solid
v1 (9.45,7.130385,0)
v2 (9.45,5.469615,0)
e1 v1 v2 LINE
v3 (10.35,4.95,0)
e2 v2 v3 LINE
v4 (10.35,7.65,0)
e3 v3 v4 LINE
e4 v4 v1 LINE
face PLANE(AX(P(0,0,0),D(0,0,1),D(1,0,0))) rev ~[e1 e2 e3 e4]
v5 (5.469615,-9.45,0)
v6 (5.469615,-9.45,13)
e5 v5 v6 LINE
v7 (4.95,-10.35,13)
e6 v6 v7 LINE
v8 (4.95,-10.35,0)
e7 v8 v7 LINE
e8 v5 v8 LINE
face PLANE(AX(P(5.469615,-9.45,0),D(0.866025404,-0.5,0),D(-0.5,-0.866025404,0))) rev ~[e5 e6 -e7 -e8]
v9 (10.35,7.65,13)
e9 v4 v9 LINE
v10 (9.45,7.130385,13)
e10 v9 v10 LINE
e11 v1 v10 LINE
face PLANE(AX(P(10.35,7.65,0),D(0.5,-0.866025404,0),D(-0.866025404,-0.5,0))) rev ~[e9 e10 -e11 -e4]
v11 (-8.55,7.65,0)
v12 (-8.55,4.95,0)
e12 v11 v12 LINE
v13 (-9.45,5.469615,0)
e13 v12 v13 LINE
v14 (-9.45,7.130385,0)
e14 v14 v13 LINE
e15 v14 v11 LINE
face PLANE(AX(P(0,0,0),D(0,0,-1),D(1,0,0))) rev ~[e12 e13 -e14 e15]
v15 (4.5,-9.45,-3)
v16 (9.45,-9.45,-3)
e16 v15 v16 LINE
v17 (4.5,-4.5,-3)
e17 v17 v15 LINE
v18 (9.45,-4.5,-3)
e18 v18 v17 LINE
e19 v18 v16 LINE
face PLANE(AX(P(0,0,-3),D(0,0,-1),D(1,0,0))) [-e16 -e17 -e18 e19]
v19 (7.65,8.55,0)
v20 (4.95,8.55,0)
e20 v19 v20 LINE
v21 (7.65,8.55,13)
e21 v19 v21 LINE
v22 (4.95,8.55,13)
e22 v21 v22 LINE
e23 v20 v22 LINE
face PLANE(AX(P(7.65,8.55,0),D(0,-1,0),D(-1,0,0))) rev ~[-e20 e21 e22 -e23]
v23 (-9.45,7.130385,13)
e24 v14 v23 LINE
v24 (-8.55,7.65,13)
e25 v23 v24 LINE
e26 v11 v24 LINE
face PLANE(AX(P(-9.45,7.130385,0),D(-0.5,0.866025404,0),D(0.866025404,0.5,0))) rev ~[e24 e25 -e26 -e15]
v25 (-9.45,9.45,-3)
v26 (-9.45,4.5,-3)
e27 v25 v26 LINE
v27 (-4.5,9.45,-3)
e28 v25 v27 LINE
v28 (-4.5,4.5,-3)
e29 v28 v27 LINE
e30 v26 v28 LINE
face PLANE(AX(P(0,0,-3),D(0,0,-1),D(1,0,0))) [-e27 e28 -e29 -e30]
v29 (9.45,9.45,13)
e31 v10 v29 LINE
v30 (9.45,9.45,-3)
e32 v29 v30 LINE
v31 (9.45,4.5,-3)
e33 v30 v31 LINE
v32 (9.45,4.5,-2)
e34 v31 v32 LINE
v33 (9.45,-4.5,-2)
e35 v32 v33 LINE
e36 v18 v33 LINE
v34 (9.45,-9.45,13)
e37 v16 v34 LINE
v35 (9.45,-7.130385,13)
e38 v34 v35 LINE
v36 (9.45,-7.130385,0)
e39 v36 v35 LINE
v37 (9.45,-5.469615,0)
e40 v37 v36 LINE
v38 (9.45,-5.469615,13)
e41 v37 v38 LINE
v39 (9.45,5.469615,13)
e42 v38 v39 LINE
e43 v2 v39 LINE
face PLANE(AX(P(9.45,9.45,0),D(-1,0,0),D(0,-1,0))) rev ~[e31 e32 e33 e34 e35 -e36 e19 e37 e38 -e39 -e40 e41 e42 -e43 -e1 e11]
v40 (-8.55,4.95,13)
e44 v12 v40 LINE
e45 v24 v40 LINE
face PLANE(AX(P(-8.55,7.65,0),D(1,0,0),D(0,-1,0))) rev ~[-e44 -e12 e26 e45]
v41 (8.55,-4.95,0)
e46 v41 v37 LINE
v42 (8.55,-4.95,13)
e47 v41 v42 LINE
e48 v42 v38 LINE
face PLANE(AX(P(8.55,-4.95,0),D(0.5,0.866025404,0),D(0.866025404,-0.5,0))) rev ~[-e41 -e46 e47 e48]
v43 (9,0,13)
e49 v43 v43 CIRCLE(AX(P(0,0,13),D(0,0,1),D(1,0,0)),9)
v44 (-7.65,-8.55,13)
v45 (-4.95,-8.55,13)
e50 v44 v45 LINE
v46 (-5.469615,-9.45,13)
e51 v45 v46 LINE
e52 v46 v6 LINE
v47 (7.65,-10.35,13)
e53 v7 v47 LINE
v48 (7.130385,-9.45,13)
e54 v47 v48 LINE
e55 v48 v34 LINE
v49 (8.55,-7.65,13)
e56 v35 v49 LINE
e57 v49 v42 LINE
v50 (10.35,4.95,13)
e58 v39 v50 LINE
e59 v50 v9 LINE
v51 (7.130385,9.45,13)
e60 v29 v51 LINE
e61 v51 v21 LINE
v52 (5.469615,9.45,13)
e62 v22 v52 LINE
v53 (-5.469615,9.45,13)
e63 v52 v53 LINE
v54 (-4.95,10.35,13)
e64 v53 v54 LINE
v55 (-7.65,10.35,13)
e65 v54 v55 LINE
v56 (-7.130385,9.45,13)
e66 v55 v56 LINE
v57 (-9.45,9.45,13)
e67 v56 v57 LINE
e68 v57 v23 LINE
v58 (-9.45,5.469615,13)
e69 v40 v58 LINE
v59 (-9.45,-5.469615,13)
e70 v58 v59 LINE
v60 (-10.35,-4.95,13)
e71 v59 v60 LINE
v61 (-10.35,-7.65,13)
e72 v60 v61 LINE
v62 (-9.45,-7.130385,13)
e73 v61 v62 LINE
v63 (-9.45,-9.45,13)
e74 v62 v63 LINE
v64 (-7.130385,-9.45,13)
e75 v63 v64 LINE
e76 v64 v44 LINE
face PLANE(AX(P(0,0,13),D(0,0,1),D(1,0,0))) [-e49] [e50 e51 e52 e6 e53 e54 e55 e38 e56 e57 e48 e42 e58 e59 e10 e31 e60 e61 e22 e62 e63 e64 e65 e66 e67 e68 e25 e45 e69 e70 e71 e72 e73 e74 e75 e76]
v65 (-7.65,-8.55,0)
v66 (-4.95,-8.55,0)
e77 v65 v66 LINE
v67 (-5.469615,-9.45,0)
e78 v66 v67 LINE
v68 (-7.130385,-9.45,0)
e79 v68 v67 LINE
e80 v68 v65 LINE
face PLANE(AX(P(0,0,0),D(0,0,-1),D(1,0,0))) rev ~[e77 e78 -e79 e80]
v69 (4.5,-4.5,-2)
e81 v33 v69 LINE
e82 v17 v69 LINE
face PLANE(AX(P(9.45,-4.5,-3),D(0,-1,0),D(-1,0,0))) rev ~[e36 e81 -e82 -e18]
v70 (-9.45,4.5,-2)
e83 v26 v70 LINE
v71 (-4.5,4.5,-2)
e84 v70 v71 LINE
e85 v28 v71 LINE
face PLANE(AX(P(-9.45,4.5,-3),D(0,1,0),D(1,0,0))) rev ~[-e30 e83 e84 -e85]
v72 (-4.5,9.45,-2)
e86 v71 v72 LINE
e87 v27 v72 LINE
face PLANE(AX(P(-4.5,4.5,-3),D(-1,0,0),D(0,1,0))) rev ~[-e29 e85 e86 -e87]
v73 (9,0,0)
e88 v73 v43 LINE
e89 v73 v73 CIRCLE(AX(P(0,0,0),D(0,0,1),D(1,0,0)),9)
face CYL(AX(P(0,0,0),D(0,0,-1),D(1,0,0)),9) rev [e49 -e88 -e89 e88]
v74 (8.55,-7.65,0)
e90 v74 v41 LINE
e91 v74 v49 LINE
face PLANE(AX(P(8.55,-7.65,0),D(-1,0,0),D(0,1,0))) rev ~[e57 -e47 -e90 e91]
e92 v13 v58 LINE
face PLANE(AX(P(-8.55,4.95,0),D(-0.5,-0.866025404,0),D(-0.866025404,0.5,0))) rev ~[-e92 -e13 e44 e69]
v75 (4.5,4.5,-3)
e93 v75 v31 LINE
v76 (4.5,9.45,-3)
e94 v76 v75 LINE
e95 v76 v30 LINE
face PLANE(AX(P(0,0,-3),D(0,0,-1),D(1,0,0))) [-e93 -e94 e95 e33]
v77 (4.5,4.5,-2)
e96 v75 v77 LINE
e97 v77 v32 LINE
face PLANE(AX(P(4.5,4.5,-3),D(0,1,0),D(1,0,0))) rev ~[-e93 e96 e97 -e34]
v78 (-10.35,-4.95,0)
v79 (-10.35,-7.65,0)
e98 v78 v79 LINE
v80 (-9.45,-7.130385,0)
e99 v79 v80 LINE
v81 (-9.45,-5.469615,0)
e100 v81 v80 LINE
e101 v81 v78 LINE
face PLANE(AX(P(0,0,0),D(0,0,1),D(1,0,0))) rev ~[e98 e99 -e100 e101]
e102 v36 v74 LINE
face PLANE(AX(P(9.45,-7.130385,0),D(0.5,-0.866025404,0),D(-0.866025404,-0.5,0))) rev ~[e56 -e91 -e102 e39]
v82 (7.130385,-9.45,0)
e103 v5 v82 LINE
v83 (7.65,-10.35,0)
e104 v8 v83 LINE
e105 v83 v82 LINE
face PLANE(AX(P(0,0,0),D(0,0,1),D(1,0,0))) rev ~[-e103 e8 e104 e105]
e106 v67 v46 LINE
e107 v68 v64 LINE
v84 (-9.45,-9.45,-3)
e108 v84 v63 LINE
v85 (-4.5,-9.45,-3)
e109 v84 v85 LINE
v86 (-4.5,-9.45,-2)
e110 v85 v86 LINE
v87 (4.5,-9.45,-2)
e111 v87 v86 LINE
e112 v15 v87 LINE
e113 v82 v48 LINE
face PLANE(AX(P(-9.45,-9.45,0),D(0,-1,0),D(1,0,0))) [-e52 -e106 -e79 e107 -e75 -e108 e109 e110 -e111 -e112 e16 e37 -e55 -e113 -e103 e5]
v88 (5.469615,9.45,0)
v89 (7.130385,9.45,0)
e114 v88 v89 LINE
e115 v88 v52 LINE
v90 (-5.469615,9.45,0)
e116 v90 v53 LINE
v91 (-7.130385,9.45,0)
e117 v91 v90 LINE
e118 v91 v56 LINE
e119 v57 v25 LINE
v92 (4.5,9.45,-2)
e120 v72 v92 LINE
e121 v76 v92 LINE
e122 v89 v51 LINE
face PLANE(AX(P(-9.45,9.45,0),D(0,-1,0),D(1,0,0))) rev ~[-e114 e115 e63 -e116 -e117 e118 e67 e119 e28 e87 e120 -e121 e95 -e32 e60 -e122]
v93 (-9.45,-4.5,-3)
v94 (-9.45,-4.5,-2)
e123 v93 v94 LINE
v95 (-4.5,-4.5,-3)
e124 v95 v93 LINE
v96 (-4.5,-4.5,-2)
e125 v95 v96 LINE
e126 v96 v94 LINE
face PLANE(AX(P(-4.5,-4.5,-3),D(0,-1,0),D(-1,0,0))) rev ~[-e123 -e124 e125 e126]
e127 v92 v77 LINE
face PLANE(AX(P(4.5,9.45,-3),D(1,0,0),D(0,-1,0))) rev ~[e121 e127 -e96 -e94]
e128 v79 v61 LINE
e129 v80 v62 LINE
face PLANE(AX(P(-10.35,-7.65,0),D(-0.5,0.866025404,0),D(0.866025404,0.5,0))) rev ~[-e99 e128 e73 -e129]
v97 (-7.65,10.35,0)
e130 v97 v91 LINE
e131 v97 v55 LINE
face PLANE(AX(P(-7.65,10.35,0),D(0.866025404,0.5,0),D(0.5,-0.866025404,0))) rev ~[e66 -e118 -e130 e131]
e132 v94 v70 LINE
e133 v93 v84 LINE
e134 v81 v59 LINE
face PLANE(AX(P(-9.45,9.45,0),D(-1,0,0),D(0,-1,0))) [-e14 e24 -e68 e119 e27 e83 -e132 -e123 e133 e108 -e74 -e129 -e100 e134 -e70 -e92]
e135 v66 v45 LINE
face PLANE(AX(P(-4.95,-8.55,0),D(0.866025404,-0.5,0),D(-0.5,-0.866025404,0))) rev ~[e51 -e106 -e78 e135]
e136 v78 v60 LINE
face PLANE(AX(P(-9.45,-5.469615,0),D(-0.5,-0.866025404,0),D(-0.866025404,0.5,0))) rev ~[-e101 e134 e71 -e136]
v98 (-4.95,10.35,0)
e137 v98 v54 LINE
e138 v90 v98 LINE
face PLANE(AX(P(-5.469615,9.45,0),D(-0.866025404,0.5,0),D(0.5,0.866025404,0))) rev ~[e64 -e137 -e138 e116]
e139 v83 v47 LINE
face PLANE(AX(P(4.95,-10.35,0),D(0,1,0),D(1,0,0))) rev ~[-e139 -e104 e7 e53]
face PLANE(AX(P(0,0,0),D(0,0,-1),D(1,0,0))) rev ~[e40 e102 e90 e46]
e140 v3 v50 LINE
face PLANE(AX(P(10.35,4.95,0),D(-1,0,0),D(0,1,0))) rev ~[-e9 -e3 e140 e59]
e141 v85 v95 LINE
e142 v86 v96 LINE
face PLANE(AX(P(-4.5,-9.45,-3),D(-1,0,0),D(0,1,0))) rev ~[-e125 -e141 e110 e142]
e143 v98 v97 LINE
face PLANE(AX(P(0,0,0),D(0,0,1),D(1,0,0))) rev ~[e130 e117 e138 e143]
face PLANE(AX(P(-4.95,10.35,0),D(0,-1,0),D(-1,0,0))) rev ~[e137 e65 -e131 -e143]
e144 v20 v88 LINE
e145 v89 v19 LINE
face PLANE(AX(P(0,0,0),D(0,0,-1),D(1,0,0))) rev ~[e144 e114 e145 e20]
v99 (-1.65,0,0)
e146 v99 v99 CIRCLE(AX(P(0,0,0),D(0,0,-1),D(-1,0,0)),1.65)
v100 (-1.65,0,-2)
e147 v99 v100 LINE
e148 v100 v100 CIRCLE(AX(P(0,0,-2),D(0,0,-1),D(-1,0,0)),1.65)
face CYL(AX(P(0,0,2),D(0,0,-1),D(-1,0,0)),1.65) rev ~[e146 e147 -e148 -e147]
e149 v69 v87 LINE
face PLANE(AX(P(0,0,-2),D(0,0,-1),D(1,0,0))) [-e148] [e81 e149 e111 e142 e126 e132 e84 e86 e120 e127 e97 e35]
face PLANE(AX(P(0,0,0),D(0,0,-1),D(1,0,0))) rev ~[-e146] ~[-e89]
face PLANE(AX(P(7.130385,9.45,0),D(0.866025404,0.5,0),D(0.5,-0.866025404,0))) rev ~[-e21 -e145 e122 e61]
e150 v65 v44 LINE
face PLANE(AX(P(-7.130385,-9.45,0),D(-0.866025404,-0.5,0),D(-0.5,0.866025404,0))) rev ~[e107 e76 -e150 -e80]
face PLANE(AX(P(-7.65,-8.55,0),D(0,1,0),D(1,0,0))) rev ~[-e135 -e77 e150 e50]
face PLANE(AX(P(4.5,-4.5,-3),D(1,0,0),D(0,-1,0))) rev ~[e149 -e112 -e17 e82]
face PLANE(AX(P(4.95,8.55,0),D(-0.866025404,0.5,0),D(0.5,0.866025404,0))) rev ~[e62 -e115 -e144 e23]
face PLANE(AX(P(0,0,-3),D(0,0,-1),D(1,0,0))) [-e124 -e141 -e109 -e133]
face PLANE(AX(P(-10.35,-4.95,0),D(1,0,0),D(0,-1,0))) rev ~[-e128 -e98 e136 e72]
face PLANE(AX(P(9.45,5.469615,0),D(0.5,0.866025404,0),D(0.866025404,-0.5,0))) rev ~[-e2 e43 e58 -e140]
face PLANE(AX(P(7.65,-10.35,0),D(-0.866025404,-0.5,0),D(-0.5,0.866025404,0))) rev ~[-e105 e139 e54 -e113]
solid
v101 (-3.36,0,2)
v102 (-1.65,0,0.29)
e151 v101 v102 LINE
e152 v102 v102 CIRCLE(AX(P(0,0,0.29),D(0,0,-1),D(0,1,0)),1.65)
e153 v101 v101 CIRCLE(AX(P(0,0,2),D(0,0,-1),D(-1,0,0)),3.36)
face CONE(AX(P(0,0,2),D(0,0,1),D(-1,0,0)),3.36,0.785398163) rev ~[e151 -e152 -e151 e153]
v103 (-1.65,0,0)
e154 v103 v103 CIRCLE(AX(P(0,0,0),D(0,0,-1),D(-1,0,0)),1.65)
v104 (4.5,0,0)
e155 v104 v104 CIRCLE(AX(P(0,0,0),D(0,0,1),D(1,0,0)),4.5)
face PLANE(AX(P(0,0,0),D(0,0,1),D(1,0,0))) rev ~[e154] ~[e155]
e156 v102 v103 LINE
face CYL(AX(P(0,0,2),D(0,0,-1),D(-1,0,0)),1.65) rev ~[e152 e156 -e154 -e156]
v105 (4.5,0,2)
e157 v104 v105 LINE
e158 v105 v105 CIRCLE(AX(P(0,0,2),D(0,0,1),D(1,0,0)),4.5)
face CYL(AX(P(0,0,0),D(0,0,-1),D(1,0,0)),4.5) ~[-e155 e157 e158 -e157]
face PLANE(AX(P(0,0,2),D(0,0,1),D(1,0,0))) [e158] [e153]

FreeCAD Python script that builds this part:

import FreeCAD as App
import Part
import Sketcher
from FreeCAD import Vector
Q = App.Units.Quantity


def add_polygon(sketch, points):
    """Adds a closed chain of lines whose ends are joined by coincident constraints."""
    first, n = sketch.GeometryCount, len(points)
    for a, b in zip(points, points[1:] + points[:1]):
        sketch.addGeometry(Part.LineSegment(App.Vector(*a, 0), App.Vector(*b, 0)), False)
    for i in range(n):
        sketch.addConstraint(Sketcher.Constraint("Coincident", first + i, 2, first + (i + 1) % n, 1))

doc = App.newDocument("Part")
body = doc.addObject("PartDesign::Body", "Body")

sketch1 = body.newObject("Sketcher::SketchObject", "Sketch")
sketch1.AttachmentSupport = (doc.getObject("XY_Plane"), [""])
sketch1.MapMode = "FlatFace"
add_polygon(sketch1, [(7.130385, -9.45), (9.45, -9.45), (9.45, -7.130385), (8.55, -7.65), (8.55, -4.95), (9.45, -5.469615), (9.45, 5.469615), (10.35, 4.95), (10.35, 7.65), (9.45, 7.130385), (9.45, 9.45), (7.130385, 9.45), (7.65, 8.55), (4.95, 8.55), (5.469615, 9.45), (-5.469615, 9.45), (-4.95, 10.35), (-7.65, 10.35), (-7.130385, 9.45), (-9.45, 9.45), (-9.45, 7.130385), (-8.55, 7.65), (-8.55, 4.95), (-9.45, 5.469615), (-9.45, -5.469615), (-10.35, -4.95), (-10.35, -7.65), (-9.45, -7.130385), (-9.45, -9.45), (-7.130385, -9.45), (-7.65, -8.55), (-4.95, -8.55), (-5.469615, -9.45), (5.469615, -9.45), (4.95, -10.35), (7.65, -10.35)])
sketch1.addGeometry(Part.Circle(Vector(0, 0, 0), Vector(0, 0, 1), 9), False)
sketch1.addConstraint(Sketcher.Constraint("Horizontal", 0))
sketch1.addConstraint(Sketcher.Constraint("Vertical", 1))
sketch1.addConstraint(Sketcher.Constraint("Vertical", 3))
sketch1.addConstraint(Sketcher.Constraint("Vertical", 5))
sketch1.addConstraint(Sketcher.Constraint("Vertical", 7))
sketch1.addConstraint(Sketcher.Constraint("Vertical", 9))
sketch1.addConstraint(Sketcher.Constraint("Horizontal", 10))
sketch1.addConstraint(Sketcher.Constraint("Horizontal", 12))
sketch1.addConstraint(Sketcher.Constraint("Horizontal", 14))
sketch1.addConstraint(Sketcher.Constraint("Horizontal", 16))
sketch1.addConstraint(Sketcher.Constraint("Horizontal", 18))
sketch1.addConstraint(Sketcher.Constraint("Vertical", 19))
sketch1.addConstraint(Sketcher.Constraint("Vertical", 21))
sketch1.addConstraint(Sketcher.Constraint("Vertical", 23))
sketch1.addConstraint(Sketcher.Constraint("Vertical", 25))
sketch1.addConstraint(Sketcher.Constraint("Vertical", 27))
sketch1.addConstraint(Sketcher.Constraint("Horizontal", 28))
sketch1.addConstraint(Sketcher.Constraint("Horizontal", 30))
sketch1.addConstraint(Sketcher.Constraint("Horizontal", 32))
sketch1.addConstraint(Sketcher.Constraint("Horizontal", 34))
sketch1.addConstraint(Sketcher.Constraint("Coincident", 36, 3, -1, 1))
sketch1.addConstraint(Sketcher.Constraint("Symmetric", 0, 2, 18, 2, -1, 1))
sketch1.addConstraint(Sketcher.Constraint("Symmetric", 2, 2, 20, 2, -1, 1))
sketch1.addConstraint(Sketcher.Constraint("Symmetric", 4, 2, 22, 2, -1, 1))
sketch1.addConstraint(Sketcher.Constraint("Symmetric", 6, 2, 24, 2, -1, 1))
sketch1.addConstraint(Sketcher.Constraint("Symmetric", 8, 2, 26, 2, -1, 1))
sketch1.addConstraint(Sketcher.Constraint("Symmetric", 10, 2, 28, 2, -1, 1))
sketch1.addConstraint(Sketcher.Constraint("Symmetric", 11, 2, 29, 2, -1, 1))
sketch1.addConstraint(Sketcher.Constraint("Symmetric", 13, 2, 31, 2, -1, 1))
sketch1.addConstraint(Sketcher.Constraint("Symmetric", 15, 2, 33, 2, -1, 1))
sketch1.addConstraint(Sketcher.Constraint("Symmetric", 10, 2, 17, 2, -2))
sketch1.addConstraint(Sketcher.Constraint("Symmetric", 8, 2, 19, 2, -2))
sketch1.addConstraint(Sketcher.Constraint("Parallel", 4, 6))
sketch1.addConstraint(Sketcher.Constraint("Parallel", 2, 8))
sketch1.addConstraint(Sketcher.Constraint("Perpendicular", 8, 11))
sketch1.addConstraint(Sketcher.Constraint("Perpendicular", 6, 13))
sketch1.addConstraint(Sketcher.Constraint("Parallel", 13, 15))
sketch1.addConstraint(Sketcher.Constraint("Parallel", 11, 17))
sketch1.addConstraint(Sketcher.Constraint("Perpendicular", 17, 20))
sketch1.addConstraint(Sketcher.Constraint("Perpendicular", 15, 22))
sketch1.addConstraint(Sketcher.Constraint("Parallel", 22, 24))
sketch1.addConstraint(Sketcher.Constraint("Parallel", 20, 26))
sketch1.addConstraint(Sketcher.Constraint("Perpendicular", 24, 31))
sketch1.addConstraint(Sketcher.Constraint("Parallel", 31, 33))
sketch1.addConstraint(Sketcher.Constraint("Parallel", 29, 35))
sketch1.addConstraint(Sketcher.Constraint("Horizontal", 10, 2, 13, 2))
sketch1.addConstraint(Sketcher.Constraint("Horizontal", 7, 2, 20, 2))
sketch1.addConstraint(Sketcher.Constraint("Horizontal", 6, 2, 21, 2))
sketch1.addConstraint(Sketcher.Constraint("Horizontal", 5, 2, 22, 2))
sketch1.addConstraint(Sketcher.Constraint("Vertical", 16, 2, 29, 2))
sketch1.addConstraint(Sketcher.Constraint("Vertical", 15, 2, 30, 2))
sketch1.addConstraint(Sketcher.Constraint("Vertical", 11, 2, 34, 2))
sketch1.addConstraint(Sketcher.Constraint("Equal", 28, 1))
sketch1.addConstraint(Sketcher.Constraint("Equal", 34, 3))
sketch1.addConstraint(Sketcher.Constraint("Equal", 32, 5))
sketch1.addConstraint(Sketcher.Constraint("Equal", 2, 4))
sketch1.addConstraint(Sketcher.Constraint("Equal", 8, 11))
sketch1.addConstraint(Sketcher.Constraint("Diameter", 36, Q("18 mm")))
sketch1.addConstraint(Sketcher.Constraint("Angle", 2, Q("-150 deg")))
sketch1.addConstraint(Sketcher.Constraint("DistanceX", 12, 2, 12, 1, Q("2.7 mm")))
sketch1.addConstraint(Sketcher.Constraint("DistanceX", 2, 2, 1, 2, Q("0.9 mm")))
sketch1.addConstraint(Sketcher.Constraint("DistanceY", 0, 2, 2, 2, Q("1.8 mm")))
sketch1.addConstraint(Sketcher.Constraint("DistanceY", 1, 2, 5, 2, Q("12.6 mm")))
pad1 = body.newObject("PartDesign::Pad", "Pad")
pad1.Profile = sketch1
pad1.Length = 13

sketch2 = body.newObject("Sketcher::SketchObject", "Sketch001")
sketch2.AttachmentSupport = (doc.getObject("XY_Plane"), [""])
sketch2.MapMode = "FlatFace"
add_polygon(sketch2, [(-9.45, -9.45), (-9.45, 9.45), (9.45, 9.45), (9.45, -9.45)])
sketch2.addConstraint(Sketcher.Constraint("Vertical", 0))
sketch2.addConstraint(Sketcher.Constraint("Horizontal", 1))
sketch2.addConstraint(Sketcher.Constraint("Vertical", 2))
sketch2.addConstraint(Sketcher.Constraint("Horizontal", 3))
sketch2.addConstraint(Sketcher.Constraint("Symmetric", 0, 2, 2, 2, -1, 1))
sketch2.addConstraint(Sketcher.Constraint("Equal", 3, 0))
sketch2.addConstraint(Sketcher.Constraint("DistanceX", 1, 1, 1, 2, Q("18.9 mm")))
pad2 = body.newObject("PartDesign::Pad", "Pad001")
pad2.Profile = sketch2
pad2.Length = 3
pad2.Reversed = True

sketch3 = body.newObject("Sketcher::SketchObject", "Sketch002")
sketch3.AttachmentSupport = (doc.getObject("XY_Plane"), [""])
sketch3.MapMode = "FlatFace"
sketch3.AttachmentOffset = App.Placement(Vector(0, 0, -3), App.Rotation())
add_polygon(sketch3, [(-4.5, 9.45), (4.5, 9.45), (4.5, 4.5), (9.45, 4.5), (9.45, -4.5), (4.5, -4.5), (4.5, -9.45), (-4.5, -9.45), (-4.5, -4.5), (-9.45, -4.5), (-9.45, 4.5), (-4.5, 4.5)])
sketch3.addConstraint(Sketcher.Constraint("Horizontal", 0))
sketch3.addConstraint(Sketcher.Constraint("Vertical", 1))
sketch3.addConstraint(Sketcher.Constraint("Horizontal", 2))
sketch3.addConstraint(Sketcher.Constraint("Vertical", 3))
sketch3.addConstraint(Sketcher.Constraint("Horizontal", 4))
sketch3.addConstraint(Sketcher.Constraint("Vertical", 5))
sketch3.addConstraint(Sketcher.Constraint("Horizontal", 6))
sketch3.addConstraint(Sketcher.Constraint("Vertical", 7))
sketch3.addConstraint(Sketcher.Constraint("Horizontal", 8))
sketch3.addConstraint(Sketcher.Constraint("Vertical", 9))
sketch3.addConstraint(Sketcher.Constraint("Horizontal", 10))
sketch3.addConstraint(Sketcher.Constraint("Vertical", 11))
sketch3.addConstraint(Sketcher.Constraint("Symmetric", 0, 2, 6, 2, -1, 1))
sketch3.addConstraint(Sketcher.Constraint("Symmetric", 2, 2, 8, 2, -1, 1))
sketch3.addConstraint(Sketcher.Constraint("Symmetric", 4, 2, 10, 2, -1, 1))
sketch3.addConstraint(Sketcher.Constraint("Symmetric", 4, 2, 7, 2, -2))
sketch3.addConstraint(Sketcher.Constraint("Equal", 10, 1))
sketch3.addConstraint(Sketcher.Constraint("Equal", 6, 3))
sketch3.addConstraint(Sketcher.Constraint("DistanceX", 0, 1, 0, 2, Q("9 mm")))
sketch3.addConstraint(Sketcher.Constraint("DistanceX", 2, 1, 2, 2, Q("4.95 mm")))
pocket1 = body.newObject("PartDesign::Pocket", "Pocket")
pocket1.Profile = sketch3
pocket1.Length = 1
pocket1.Reversed = True

sketch4 = body.newObject("Sketcher::SketchObject", "Sketch003")
sketch4.AttachmentSupport = (doc.getObject("XY_Plane"), [""])
sketch4.MapMode = "FlatFace"
sketch4.AttachmentOffset = App.Placement(Vector(0, 0, 2), App.Rotation())
sketch4.addGeometry(Part.Circle(Vector(0, 0, 0), Vector(0, 0, 1), 1.65), False)
sketch4.addConstraint(Sketcher.Constraint("Coincident", 0, 3, -1, 1))
sketch4.addConstraint(Sketcher.Constraint("Diameter", 0, Q("3.3 mm")))
doc.recompute()
hole = body.newObject("PartDesign::Hole", "Hole")
hole.Profile = sketch4
hole.ThreadType = "None"
hole.Diameter = 3.3
hole.DepthType = "ThroughAll"
hole.HoleCutType = "Countersink"
hole.HoleCutDiameter = 6.72
hole.HoleCutCountersinkAngle = 90
body2 = doc.addObject("PartDesign::Body", "Body001")

sketch5 = body2.newObject("Sketcher::SketchObject", "Sketch004")
sketch5.AttachmentSupport = (doc.getObject("XY_Plane001"), [""])
sketch5.MapMode = "FlatFace"
sketch5.addGeometry(Part.Circle(Vector(0, 0, 0), Vector(0, 0, 1), 4.5), False)
sketch5.addConstraint(Sketcher.Constraint("Coincident", 0, 3, -1, 1))
sketch5.addConstraint(Sketcher.Constraint("Diameter", 0, Q("9 mm")))
pad3 = body2.newObject("PartDesign::Pad", "Pad002")
pad3.Profile = sketch5
pad3.Length = 2

sketch6 = body2.newObject("Sketcher::SketchObject", "Sketch005")
sketch6.AttachmentSupport = (doc.getObject("XY_Plane001"), [""])
sketch6.MapMode = "FlatFace"
sketch6.AttachmentOffset = App.Placement(Vector(0, 0, 2), App.Rotation())
sketch6.addGeometry(Part.Circle(Vector(0, 0, 0), Vector(0, 0, 1), 1.65), False)
sketch6.addConstraint(Sketcher.Constraint("Coincident", 0, 3, -1, 1))
sketch6.addConstraint(Sketcher.Constraint("Diameter", 0, Q("3.3 mm")))
doc.recompute()
hole2 = body2.newObject("PartDesign::Hole", "Hole001")
hole2.Profile = sketch6
hole2.ThreadType = "None"
hole2.Diameter = 3.3
hole2.DepthType = "ThroughAll"
hole2.HoleCutType = "Countersink"
hole2.HoleCutDiameter = 6.72
hole2.HoleCutCountersinkAngle = 90

doc.recompute()
